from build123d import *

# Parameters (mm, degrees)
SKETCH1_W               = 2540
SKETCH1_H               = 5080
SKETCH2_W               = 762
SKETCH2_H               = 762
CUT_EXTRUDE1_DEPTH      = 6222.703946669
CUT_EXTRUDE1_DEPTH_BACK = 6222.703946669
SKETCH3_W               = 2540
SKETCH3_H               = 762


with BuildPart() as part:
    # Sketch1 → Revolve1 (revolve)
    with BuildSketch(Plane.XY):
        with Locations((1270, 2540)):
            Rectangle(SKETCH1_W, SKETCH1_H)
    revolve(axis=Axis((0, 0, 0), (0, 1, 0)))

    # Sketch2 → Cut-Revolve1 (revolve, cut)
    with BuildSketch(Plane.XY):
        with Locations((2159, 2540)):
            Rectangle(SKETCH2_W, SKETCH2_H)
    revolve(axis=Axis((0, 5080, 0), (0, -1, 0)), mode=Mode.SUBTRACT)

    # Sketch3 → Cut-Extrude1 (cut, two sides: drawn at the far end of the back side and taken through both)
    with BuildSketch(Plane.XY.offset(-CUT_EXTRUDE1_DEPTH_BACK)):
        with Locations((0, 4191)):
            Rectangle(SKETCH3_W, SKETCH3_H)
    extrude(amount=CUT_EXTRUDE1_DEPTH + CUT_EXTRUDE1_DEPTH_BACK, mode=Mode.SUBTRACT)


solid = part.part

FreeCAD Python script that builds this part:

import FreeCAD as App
import Part
import Sketcher

V = App.Vector
Q = App.Units.Quantity


def add_polygon(sketch, points):
    """Adds a closed chain of lines whose ends are joined by coincident constraints."""
    first, n = sketch.GeometryCount, len(points)
    for a, b in zip(points, points[1:] + points[:1]):
        sketch.addGeometry(Part.LineSegment(App.Vector(*a, 0), App.Vector(*b, 0)), False)
    for i in range(n):
        sketch.addConstraint(Sketcher.Constraint("Coincident", first + i, 2, first + (i + 1) % n, 1))

doc = App.newDocument("Part")
body = doc.addObject("PartDesign::Body", "Body")

# Sketch on XY plane
sketch1 = body.newObject("Sketcher::SketchObject", "Sketch")
sketch1.AttachmentSupport = (doc.getObject("XY_Plane"), [""])
sketch1.MapMode = "FlatFace"
add_polygon(sketch1, [(0, 5080), (0, 0), (2540, 0), (2540, 5080)])  # lines 0-3
sketch1.addConstraint([
    Sketcher.Constraint("Vertical", 0),
    Sketcher.Constraint("Horizontal", 1),
    Sketcher.Constraint("Vertical", 2),
    Sketcher.Constraint("Horizontal", 3),
    Sketcher.Constraint("Coincident", 0, 2, -1, 1),
    Sketcher.Constraint("DistanceX", 1, 1, 1, 2, Q("100 in")),
    Sketcher.Constraint("DistanceY", 0, 2, 0, 1, Q("200 in")),
])
revolution = body.newObject("PartDesign::Revolution", "Revolution")
revolution.Profile = sketch1
revolution.ReferenceAxis = (sketch1, ["V_Axis"])
revolution.Angle = 360

# Sketch on XY plane
sketch2 = body.newObject("Sketcher::SketchObject", "Sketch001")
sketch2.AttachmentSupport = (doc.getObject("XY_Plane"), [""])
sketch2.MapMode = "FlatFace"
add_polygon(sketch2, [(1778, 2921), (1778, 2159), (2540, 2159), (2540, 2921)])  # lines 0-3
sketch2.addConstraint([
    Sketcher.Constraint("Vertical", 0),
    Sketcher.Constraint("Horizontal", 1),
    Sketcher.Constraint("Vertical", 2),
    Sketcher.Constraint("Horizontal", 3),
    Sketcher.Constraint("Equal", 3, 0),
    Sketcher.Constraint("DistanceX", 1, 1, 1, 2, Q("30 in")),
    Sketcher.Constraint("DistanceX", -1, 1, 0, 2, Q("70 in")),
    Sketcher.Constraint("DistanceY", -1, 1, 0, 2, Q("85 in")),
])
groove = body.newObject("PartDesign::Groove", "Groove")
groove.Profile = sketch2
groove.ReferenceAxis = (sketch2, ["V_Axis"])
groove.Angle = 360

# Sketch on XY plane
sketch3 = body.newObject("Sketcher::SketchObject", "Sketch002")
sketch3.AttachmentSupport = (doc.getObject("XY_Plane"), [""])
sketch3.MapMode = "FlatFace"
add_polygon(sketch3, [(-1270, 4572), (-1270, 3810), (1270, 3810), (1270, 4572)])  # lines 0-3
sketch3.addConstraint([
    Sketcher.Constraint("Vertical", 0),
    Sketcher.Constraint("Horizontal", 1),
    Sketcher.Constraint("Vertical", 2),
    Sketcher.Constraint("Horizontal", 3),
    Sketcher.Constraint("DistanceX", 1, 1, 1, 2, Q("100 in")),
    Sketcher.Constraint("DistanceY", 0, 2, 0, 1, Q("30 in")),
    Sketcher.Constraint("DistanceX", 0, 2, -1, 1, Q("50 in")),
    Sketcher.Constraint("DistanceY", -1, 1, 0, 2, Q("150 in")),
])
pocket1 = body.newObject("PartDesign::Pocket", "Pocket")
pocket1.Profile = sketch3
pocket1.Type = "ThroughAll"
pocket1.Midplane = True

doc.recompute()
